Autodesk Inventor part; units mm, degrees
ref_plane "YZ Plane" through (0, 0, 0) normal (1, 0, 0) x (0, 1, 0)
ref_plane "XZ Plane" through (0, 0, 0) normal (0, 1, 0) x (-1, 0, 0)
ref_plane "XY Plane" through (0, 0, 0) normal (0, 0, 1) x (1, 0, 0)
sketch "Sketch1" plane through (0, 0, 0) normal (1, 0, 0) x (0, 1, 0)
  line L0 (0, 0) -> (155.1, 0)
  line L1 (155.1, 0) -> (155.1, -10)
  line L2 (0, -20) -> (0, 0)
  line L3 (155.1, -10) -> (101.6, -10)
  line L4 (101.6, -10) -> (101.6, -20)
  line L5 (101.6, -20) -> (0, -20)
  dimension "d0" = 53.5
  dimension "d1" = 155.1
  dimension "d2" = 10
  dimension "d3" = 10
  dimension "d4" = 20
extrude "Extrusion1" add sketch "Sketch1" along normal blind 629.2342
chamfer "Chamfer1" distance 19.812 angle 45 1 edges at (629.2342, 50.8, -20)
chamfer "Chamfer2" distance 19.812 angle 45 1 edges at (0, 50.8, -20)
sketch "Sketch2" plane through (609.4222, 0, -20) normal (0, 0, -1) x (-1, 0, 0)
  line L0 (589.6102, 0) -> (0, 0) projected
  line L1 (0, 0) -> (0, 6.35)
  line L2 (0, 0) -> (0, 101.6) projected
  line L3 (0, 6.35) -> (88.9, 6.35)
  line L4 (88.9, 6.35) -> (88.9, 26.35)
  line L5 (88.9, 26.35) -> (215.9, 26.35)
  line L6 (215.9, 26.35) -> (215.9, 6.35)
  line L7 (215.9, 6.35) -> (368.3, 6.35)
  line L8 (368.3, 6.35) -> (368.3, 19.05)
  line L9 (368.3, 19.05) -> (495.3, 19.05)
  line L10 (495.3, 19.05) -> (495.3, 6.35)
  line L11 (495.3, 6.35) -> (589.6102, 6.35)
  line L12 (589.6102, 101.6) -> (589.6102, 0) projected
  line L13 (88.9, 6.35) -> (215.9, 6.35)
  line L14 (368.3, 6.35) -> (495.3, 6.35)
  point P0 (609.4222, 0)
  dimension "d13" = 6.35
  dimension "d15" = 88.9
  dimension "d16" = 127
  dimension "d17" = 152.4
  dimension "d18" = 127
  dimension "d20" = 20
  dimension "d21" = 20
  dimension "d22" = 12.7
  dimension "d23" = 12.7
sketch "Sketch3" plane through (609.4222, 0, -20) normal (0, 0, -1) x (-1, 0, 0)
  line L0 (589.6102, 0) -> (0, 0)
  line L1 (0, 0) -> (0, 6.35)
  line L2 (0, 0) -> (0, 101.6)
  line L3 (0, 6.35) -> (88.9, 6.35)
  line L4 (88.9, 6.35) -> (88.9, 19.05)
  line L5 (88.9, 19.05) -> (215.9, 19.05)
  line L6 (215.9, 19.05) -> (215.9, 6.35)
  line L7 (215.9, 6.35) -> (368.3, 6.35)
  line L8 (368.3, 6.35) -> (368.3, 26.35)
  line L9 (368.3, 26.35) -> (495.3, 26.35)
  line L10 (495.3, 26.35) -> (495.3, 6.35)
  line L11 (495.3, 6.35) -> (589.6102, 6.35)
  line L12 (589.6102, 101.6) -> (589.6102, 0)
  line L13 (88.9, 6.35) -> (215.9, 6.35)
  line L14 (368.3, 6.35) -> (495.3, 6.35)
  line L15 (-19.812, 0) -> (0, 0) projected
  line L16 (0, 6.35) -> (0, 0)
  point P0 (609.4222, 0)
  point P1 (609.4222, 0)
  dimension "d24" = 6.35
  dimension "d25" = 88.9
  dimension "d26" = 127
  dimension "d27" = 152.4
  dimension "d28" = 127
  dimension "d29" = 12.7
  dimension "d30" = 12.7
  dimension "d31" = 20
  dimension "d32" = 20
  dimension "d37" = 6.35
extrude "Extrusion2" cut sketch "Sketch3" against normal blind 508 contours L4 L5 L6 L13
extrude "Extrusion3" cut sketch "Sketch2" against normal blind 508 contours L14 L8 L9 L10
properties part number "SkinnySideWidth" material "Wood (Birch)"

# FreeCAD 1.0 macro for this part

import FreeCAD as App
import Part
import Sketcher

V = App.Vector
Q = App.Units.Quantity


def edges_at(feature, points):
    """Names of the edges that pass closest to the given points."""
    edges = feature.Shape.Edges
    near = lambda p: min(range(len(edges)), key=lambda i: edges[i].distToShape(Part.Vertex(*p))[0])
    return sorted({f"Edge{near(p) + 1}" for p in points})


def add_polygon(sketch, points):
    """Adds a closed chain of lines whose ends are joined by coincident constraints."""
    first, n = sketch.GeometryCount, len(points)
    for a, b in zip(points, points[1:] + points[:1]):
        sketch.addGeometry(Part.LineSegment(App.Vector(*a, 0), App.Vector(*b, 0)), False)
    for i in range(n):
        sketch.addConstraint(Sketcher.Constraint("Coincident", first + i, 2, first + (i + 1) % n, 1))

doc = App.newDocument("Part")
body = doc.addObject("PartDesign::Body", "Body")

sketch1 = body.newObject("Sketcher::SketchObject", "Sketch")
sketch1.AttachmentSupport = (doc.getObject("YZ_Plane"), [""])
sketch1.MapMode = "FlatFace"
add_polygon(sketch1, [(155, 0), (0, 0), (0, -20), (102, -20), (102, -10), (155, -10)])
sketch1.addConstraint([
    Sketcher.Constraint("Horizontal", 0),
    Sketcher.Constraint("Vertical", 1),
    Sketcher.Constraint("Horizontal", 2),
    Sketcher.Constraint("Vertical", 3),
    Sketcher.Constraint("Horizontal", 4),
    Sketcher.Constraint("Vertical", 5),
    Sketcher.Constraint("Coincident", 0, 2, -1, 1),
    Sketcher.Constraint("Equal", 3, 5),
    Sketcher.Constraint("DistanceX", 2, 1, 2, 2, Q("4 in")),
    Sketcher.Constraint("DistanceX", 0, 2, 0, 1, Q("6.1063 in")),
    Sketcher.Constraint("DistanceY", 1, 2, 1, 1, Q("0.7874 in")),
])
pad1 = body.newObject("PartDesign::Pad", "Pad")
pad1.Profile = sketch1
pad1.Length = Q("24.773 in")
doc.recompute()

chamfer = body.newObject("PartDesign::Chamfer", "Chamfer")
chamfer.Base = (pad1, edges_at(pad1, [(629.234, 50.8, -20)]))
chamfer.Size = Q("0.78 in")
doc.recompute()

chamfer2 = body.newObject("PartDesign::Chamfer", "Chamfer001")
chamfer2.Base = (chamfer, edges_at(chamfer, [(0, 50.8, -20)]))
chamfer2.Size = Q("0.78 in")

sketch2 = body.newObject("Sketcher::SketchObject", "Sketch001")
sketch2.AttachmentSupport = (doc.getObject("XY_Plane"), [""])
sketch2.MapMode = "FlatFace"
sketch2.AttachmentOffset = App.Placement(V(0, 0, -0.7874016 * 25.4), App.Rotation())
add_polygon(sketch2, [(521, 19), (521, 6), (394, 6), (394, 19)])
sketch2.addConstraint([
    Sketcher.Constraint("Vertical", 0),
    Sketcher.Constraint("Horizontal", 1),
    Sketcher.Constraint("Vertical", 2),
    Sketcher.Constraint("Horizontal", 3),
    Sketcher.Constraint("DistanceX", 1, 2, 1, 1, Q("5 in")),
    Sketcher.Constraint("DistanceY", 0, 2, 0, 1, Q("0.5 in")),
    Sketcher.Constraint("DistanceY", -1, 1, 0, 2, Q("0.25 in")),
    Sketcher.Constraint("DistanceX", -1, 1, 0, 2, Q("20.493 in")),
])
pocket1 = body.newObject("PartDesign::Pocket", "Pocket")
pocket1.Profile = sketch2
pocket1.Length = Q("20 in")
pocket1.Reversed = True

sketch3 = body.newObject("Sketcher::SketchObject", "Sketch002")
sketch3.AttachmentSupport = (doc.getObject("XY_Plane"), [""])
sketch3.MapMode = "FlatFace"
sketch3.AttachmentOffset = App.Placement(V(0, 0, -0.7874016 * 25.4), App.Rotation())
add_polygon(sketch3, [(241, 6), (114, 6), (114, 19), (241, 19)])
sketch3.addConstraint([
    Sketcher.Constraint("Horizontal", 0),
    Sketcher.Constraint("Vertical", 1),
    Sketcher.Constraint("Horizontal", 2),
    Sketcher.Constraint("Vertical", 3),
    Sketcher.Constraint("DistanceX", 0, 2, 0, 1, Q("5 in")),
    Sketcher.Constraint("DistanceY", 1, 1, 1, 2, Q("0.5 in")),
    Sketcher.Constraint("DistanceY", -1, 1, 0, 2, Q("0.25 in")),
    Sketcher.Constraint("DistanceX", -1, 1, 0, 2, Q("4.493 in")),
])
pocket2 = body.newObject("PartDesign::Pocket", "Pocket001")
pocket2.Profile = sketch3
pocket2.Length = Q("20 in")
pocket2.Reversed = True

doc.recompute()
